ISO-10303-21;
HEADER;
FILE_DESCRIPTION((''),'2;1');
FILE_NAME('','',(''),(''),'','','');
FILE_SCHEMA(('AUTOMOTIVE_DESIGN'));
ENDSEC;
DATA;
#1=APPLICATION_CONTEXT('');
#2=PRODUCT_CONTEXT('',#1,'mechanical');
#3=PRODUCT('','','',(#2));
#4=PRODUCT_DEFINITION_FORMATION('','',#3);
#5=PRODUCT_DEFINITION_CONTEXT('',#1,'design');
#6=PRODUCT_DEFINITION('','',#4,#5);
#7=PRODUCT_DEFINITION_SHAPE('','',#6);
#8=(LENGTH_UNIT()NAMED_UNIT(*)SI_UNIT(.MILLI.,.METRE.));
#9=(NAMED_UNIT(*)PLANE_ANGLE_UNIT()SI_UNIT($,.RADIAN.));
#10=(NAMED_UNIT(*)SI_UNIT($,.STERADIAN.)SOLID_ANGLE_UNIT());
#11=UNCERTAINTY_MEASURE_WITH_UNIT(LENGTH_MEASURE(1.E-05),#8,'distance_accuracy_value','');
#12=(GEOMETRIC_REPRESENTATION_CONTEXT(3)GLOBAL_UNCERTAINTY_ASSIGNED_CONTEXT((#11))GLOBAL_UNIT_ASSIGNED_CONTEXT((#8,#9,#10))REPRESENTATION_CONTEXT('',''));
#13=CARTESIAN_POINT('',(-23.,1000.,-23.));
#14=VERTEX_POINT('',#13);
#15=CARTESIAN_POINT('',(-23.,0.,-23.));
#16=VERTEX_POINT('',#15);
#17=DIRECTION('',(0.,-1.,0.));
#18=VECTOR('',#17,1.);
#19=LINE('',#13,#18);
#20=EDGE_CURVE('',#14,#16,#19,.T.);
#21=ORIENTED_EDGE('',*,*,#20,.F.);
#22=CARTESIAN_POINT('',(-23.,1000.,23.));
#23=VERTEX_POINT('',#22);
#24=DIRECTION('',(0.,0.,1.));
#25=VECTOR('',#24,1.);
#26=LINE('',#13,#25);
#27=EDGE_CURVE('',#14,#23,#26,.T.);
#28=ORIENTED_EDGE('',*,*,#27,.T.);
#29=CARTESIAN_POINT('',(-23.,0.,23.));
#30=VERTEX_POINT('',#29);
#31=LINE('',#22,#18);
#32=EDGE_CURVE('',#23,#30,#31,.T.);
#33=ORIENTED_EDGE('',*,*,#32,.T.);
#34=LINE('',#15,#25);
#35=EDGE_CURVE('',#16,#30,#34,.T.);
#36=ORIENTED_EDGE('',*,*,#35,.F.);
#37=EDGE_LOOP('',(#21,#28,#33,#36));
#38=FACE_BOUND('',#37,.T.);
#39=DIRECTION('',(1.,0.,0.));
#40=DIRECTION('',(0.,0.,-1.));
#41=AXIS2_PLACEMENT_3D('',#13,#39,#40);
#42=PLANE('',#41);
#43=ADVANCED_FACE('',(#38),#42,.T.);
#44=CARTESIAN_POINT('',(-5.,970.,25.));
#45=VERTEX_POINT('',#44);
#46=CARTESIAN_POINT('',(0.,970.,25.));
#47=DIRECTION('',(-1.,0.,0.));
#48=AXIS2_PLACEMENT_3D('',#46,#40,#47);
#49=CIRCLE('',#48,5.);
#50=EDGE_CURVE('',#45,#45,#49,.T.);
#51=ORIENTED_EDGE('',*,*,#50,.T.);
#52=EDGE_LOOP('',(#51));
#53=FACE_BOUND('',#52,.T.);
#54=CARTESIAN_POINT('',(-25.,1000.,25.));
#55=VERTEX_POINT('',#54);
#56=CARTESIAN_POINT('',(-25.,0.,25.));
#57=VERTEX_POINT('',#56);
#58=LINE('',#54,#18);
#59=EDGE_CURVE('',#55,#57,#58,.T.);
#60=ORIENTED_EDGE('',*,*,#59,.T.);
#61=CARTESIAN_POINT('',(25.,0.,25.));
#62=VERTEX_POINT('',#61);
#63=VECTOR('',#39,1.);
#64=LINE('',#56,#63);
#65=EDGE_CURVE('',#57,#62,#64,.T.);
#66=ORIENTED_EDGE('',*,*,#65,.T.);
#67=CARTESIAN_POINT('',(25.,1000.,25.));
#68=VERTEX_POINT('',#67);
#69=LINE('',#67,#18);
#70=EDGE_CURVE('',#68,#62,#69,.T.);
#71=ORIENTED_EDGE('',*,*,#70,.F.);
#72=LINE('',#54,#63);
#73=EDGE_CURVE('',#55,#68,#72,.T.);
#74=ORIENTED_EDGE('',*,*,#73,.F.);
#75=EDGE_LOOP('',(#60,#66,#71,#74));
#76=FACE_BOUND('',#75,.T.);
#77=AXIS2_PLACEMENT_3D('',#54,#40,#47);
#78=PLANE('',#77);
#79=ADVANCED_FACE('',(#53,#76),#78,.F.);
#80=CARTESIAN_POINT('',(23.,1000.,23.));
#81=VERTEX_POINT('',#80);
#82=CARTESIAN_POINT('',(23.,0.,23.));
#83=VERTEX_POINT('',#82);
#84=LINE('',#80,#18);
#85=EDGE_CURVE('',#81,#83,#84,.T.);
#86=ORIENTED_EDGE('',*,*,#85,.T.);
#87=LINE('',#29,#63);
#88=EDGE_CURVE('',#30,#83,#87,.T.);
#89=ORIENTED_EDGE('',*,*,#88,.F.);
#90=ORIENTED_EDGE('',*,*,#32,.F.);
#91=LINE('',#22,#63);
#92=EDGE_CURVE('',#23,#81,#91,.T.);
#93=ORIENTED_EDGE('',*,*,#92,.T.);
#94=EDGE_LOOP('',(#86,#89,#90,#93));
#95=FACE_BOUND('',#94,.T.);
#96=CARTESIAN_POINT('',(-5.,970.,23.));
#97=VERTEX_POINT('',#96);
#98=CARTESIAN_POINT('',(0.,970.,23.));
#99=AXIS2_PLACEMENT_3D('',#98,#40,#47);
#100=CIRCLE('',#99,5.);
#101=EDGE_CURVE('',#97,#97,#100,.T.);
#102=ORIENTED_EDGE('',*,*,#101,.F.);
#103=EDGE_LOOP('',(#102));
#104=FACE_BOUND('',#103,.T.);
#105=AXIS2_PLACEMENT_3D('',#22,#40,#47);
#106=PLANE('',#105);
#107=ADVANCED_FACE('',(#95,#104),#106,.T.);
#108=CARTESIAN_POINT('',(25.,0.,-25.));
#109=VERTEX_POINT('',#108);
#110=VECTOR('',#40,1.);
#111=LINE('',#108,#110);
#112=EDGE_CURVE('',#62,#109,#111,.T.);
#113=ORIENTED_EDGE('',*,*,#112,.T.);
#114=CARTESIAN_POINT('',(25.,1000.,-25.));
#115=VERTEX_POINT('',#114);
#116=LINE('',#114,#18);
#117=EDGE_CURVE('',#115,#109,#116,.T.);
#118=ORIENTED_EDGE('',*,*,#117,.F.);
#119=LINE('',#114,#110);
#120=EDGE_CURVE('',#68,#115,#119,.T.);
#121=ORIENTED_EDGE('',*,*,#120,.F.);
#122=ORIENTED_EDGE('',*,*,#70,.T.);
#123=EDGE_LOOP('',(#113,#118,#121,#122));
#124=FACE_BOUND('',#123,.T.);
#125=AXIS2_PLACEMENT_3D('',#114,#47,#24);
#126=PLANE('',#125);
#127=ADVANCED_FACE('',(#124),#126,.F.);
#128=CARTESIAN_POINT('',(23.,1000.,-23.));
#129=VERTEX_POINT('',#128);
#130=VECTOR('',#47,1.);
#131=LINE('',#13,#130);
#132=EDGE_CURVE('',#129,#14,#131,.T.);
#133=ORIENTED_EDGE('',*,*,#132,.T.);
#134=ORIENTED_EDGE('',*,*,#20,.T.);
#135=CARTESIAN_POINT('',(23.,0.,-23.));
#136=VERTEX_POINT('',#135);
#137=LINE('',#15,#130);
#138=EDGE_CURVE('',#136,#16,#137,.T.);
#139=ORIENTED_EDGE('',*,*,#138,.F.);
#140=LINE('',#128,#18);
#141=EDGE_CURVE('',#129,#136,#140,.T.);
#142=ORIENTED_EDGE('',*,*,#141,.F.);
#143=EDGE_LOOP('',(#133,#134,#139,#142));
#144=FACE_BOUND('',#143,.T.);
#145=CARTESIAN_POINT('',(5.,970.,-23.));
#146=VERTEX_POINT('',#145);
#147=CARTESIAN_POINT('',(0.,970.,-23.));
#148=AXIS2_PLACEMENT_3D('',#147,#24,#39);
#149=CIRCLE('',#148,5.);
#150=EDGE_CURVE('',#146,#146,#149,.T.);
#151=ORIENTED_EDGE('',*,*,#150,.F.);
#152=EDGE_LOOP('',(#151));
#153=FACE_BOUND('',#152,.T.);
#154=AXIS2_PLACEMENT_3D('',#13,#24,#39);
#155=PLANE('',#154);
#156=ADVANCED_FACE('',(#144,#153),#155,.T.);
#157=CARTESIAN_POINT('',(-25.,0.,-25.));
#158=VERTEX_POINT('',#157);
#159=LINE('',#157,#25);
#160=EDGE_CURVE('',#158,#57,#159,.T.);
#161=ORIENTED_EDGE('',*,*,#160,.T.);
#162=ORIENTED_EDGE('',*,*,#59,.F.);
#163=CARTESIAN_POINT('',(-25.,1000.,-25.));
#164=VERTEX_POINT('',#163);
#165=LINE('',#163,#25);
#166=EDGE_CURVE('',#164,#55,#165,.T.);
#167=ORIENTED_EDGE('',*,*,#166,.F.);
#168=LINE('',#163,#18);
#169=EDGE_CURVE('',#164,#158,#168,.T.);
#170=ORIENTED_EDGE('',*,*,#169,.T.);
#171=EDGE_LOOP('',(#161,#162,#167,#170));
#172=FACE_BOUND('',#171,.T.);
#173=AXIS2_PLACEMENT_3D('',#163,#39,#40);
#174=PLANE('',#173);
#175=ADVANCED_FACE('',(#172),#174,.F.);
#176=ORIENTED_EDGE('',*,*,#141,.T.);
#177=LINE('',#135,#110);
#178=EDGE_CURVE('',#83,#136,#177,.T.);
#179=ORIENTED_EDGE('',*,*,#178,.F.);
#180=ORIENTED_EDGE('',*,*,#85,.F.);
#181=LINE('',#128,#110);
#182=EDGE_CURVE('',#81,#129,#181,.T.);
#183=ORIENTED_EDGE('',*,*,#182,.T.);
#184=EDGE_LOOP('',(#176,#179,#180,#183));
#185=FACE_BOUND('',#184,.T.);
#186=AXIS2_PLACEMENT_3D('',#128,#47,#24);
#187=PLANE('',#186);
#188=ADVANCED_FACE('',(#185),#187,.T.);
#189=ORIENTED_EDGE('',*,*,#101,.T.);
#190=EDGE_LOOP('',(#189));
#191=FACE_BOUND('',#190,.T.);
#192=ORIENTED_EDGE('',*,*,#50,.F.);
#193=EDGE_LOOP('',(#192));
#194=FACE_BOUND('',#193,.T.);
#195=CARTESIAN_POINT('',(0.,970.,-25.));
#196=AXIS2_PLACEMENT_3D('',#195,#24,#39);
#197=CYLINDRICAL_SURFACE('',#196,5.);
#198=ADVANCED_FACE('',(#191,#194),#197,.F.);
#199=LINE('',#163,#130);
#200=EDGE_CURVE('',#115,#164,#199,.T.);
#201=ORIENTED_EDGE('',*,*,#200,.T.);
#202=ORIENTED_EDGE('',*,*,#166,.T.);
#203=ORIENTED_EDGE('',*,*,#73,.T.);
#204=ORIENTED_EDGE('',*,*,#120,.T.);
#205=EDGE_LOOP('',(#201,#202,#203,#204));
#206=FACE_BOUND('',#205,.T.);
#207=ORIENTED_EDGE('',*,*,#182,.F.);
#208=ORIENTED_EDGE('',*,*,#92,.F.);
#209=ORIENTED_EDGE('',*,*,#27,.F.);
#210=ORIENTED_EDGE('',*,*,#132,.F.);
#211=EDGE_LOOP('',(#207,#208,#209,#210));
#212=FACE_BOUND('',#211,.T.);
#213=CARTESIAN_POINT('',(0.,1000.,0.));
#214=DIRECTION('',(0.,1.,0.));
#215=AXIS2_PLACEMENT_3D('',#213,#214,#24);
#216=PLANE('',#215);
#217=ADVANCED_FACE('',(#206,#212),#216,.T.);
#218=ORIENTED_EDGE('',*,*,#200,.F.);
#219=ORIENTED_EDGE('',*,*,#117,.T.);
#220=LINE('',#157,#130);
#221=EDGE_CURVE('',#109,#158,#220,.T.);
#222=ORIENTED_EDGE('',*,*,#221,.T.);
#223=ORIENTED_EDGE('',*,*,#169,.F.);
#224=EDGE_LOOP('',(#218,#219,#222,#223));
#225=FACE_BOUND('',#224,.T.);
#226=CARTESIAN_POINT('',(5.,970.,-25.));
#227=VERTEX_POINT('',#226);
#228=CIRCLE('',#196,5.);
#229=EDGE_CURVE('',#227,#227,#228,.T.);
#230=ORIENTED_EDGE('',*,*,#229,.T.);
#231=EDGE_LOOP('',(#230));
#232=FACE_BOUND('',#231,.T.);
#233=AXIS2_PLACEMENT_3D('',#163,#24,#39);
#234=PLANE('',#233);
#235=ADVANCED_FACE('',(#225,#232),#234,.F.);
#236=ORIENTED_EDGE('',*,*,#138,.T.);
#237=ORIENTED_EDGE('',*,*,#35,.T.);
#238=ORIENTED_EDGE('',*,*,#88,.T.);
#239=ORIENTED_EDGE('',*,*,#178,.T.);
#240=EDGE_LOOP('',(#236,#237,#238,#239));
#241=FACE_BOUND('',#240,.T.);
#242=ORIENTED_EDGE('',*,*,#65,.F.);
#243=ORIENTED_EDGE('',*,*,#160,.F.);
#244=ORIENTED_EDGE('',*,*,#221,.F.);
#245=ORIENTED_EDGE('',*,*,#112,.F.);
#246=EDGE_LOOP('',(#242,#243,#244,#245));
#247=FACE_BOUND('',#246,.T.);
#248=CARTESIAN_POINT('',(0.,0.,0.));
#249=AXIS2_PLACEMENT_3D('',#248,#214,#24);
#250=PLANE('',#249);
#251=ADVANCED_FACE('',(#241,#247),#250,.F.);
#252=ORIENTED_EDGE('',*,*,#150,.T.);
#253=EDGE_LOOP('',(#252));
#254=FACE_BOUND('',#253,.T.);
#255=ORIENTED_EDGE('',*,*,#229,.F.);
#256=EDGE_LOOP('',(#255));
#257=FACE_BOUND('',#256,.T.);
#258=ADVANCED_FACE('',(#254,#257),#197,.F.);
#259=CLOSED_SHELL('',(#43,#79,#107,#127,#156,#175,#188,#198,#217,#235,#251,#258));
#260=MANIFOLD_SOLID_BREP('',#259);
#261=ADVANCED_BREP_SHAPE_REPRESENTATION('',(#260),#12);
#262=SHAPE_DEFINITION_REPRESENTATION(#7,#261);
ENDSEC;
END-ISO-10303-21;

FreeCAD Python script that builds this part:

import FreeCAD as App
import Part
import Sketcher
Q = App.Units.Quantity


def add_polygon(sketch, points):
    """Adds a closed chain of lines whose ends are joined by coincident constraints."""
    first, n = sketch.GeometryCount, len(points)
    for a, b in zip(points, points[1:] + points[:1]):
        sketch.addGeometry(Part.LineSegment(App.Vector(*a, 0), App.Vector(*b, 0)), False)
    for i in range(n):
        sketch.addConstraint(Sketcher.Constraint("Coincident", first + i, 2, first + (i + 1) % n, 1))

doc = App.newDocument("Part")
body = doc.addObject("PartDesign::Body", "Body")

# Sketch on XZ plane
sketch1 = doc.addObject("Sketcher::SketchObject", "Sketch")
body.addObject(sketch1)
sketch1.AttachmentSupport = (doc.XZ_Plane, [""])
sketch1.MapMode = "FlatFace"
add_polygon(sketch1, [(-25, -25), (-25, 25), (25, 25), (25, -25)])  # lines 0-3
add_polygon(sketch1, [(23, 23), (-23, 23), (-23, -23), (23, -23)])  # lines 4-7
sketch1.addConstraint([
    Sketcher.Constraint("Vertical", 0),
    Sketcher.Constraint("Horizontal", 1),
    Sketcher.Constraint("Vertical", 2),
    Sketcher.Constraint("Horizontal", 3),
    Sketcher.Constraint("Horizontal", 4),
    Sketcher.Constraint("Vertical", 5),
    Sketcher.Constraint("Horizontal", 6),
    Sketcher.Constraint("Vertical", 7),
    Sketcher.Constraint("Symmetric", 0, 2, 2, 2, -1, 1),
    Sketcher.Constraint("Symmetric", 4, 2, 6, 2, -1, 1),
    Sketcher.Constraint("Equal", 3, 0),
    Sketcher.Constraint("Equal", 6, 5),
    Sketcher.Constraint("DistanceX", 1, 1, 1, 2, Q("50 mm")),
    Sketcher.Constraint("DistanceX", 4, 2, 4, 1, Q("46 mm")),
])
pad1 = doc.addObject("PartDesign::Pad", "Pad")
body.addObject(pad1)
pad1.Profile = sketch1
pad1.Length = 1000
pad1.Reversed = True

# Sketch on XY plane
sketch2 = doc.addObject("Sketcher::SketchObject", "Sketch001")
body.addObject(sketch2)
sketch2.AttachmentSupport = (doc.XY_Plane, [""])
sketch2.MapMode = "FlatFace"
sketch2.AttachmentOffset = App.Placement(App.Vector(0, 0, 25), App.Rotation())
sketch2.addGeometry(Part.Circle(App.Vector(0, 970, 0), App.Vector(0, 0, 1), 5), False)
sketch2.addConstraint([
    Sketcher.Constraint("PointOnObject", 0, 3, -2),
    Sketcher.Constraint("Diameter", 0, Q("10 mm")),
    Sketcher.Constraint("DistanceY", -1, 1, 0, 3, Q("970 mm")),
])
pocket1 = doc.addObject("PartDesign::Pocket", "Pocket")
body.addObject(pocket1)
pocket1.Profile = sketch2
pocket1.Type = "ThroughAll"
pocket1.Midplane = True

doc.recompute()
